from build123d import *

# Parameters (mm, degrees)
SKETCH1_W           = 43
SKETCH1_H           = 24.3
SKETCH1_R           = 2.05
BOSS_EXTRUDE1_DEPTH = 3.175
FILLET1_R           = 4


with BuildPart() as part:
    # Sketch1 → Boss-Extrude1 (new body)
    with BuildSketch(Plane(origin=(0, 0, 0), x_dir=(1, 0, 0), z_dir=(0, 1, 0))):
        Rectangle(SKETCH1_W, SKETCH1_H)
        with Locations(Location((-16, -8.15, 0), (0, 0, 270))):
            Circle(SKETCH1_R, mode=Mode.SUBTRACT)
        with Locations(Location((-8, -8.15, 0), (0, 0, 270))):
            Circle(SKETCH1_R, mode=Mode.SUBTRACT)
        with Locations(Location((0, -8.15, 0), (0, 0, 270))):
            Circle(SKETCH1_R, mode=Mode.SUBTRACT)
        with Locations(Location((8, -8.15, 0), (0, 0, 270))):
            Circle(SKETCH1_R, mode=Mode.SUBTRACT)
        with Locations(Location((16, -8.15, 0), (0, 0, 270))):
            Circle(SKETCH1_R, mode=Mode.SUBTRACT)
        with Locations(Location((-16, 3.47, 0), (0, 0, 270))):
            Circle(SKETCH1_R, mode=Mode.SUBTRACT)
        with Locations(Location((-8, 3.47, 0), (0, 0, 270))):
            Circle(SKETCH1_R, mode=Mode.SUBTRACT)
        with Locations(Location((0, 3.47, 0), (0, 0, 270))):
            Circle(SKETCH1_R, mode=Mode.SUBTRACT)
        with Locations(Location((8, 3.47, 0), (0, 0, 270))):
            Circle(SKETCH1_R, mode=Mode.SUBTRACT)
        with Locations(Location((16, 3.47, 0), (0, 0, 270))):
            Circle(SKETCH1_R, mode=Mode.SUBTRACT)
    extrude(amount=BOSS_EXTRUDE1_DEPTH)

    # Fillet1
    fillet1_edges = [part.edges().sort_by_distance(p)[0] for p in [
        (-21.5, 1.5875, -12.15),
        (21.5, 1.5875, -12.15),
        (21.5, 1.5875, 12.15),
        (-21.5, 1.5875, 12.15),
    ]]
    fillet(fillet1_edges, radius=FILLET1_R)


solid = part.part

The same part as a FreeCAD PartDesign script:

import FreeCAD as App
import Part
import Sketcher


def edges_at(feature, points):
    """Names of the edges that pass closest to the given points."""
    edges = feature.Shape.Edges
    near = lambda p: min(range(len(edges)), key=lambda i: edges[i].distToShape(Part.Vertex(*p))[0])
    return sorted({f"Edge{near(p) + 1}" for p in points})

doc = App.newDocument("Part")
body = doc.addObject("PartDesign::Body", "Body")

# Sketch on XZ plane
sketch1 = body.newObject("Sketcher::SketchObject", "Sketch")
sketch1.AttachmentSupport = (doc.getObject("XZ_Plane"), [""])
sketch1.MapMode = "FlatFace"
sketch1.addGeometry([
    Part.LineSegment(App.Vector(-21.5, -12.2, 0), App.Vector(-21.5, 12.2, 0)),  # 0
    Part.LineSegment(App.Vector(-21.5, 12.2, 0), App.Vector(21.5, 12.2, 0)),  # 1
    Part.LineSegment(App.Vector(21.5, 12.2, 0), App.Vector(21.5, -12.2, 0)),  # 2
    Part.LineSegment(App.Vector(21.5, -12.2, 0), App.Vector(-21.5, -12.2, 0)),  # 3
    Part.Circle(App.Vector(-16, 8.2, 0), App.Vector(0, 0, 1), 2),  # 4
    Part.Circle(App.Vector(-8, 8.2, 0), App.Vector(0, 0, 1), 2),  # 5
    Part.Circle(App.Vector(0, 8.2, 0), App.Vector(0, 0, 1), 2),  # 6
    Part.Circle(App.Vector(8, 8.2, 0), App.Vector(0, 0, 1), 2),  # 7
    Part.Circle(App.Vector(16, 8.2, 0), App.Vector(0, 0, 1), 2),  # 8
    Part.Circle(App.Vector(-16, -3.5, 0), App.Vector(0, 0, 1), 2),  # 9
    Part.Circle(App.Vector(-8, -3.5, 0), App.Vector(0, 0, 1), 2),  # 10
    Part.Circle(App.Vector(0, -3.5, 0), App.Vector(0, 0, 1), 2),  # 11
    Part.Circle(App.Vector(8, -3.5, 0), App.Vector(0, 0, 1), 2),  # 12
    Part.Circle(App.Vector(16, -3.5, 0), App.Vector(0, 0, 1), 2),  # 13
], False)
sketch1.addConstraint([
    Sketcher.Constraint("Coincident", 0, 2, 1, 1),
    Sketcher.Constraint("Coincident", 1, 2, 2, 1),
    Sketcher.Constraint("Coincident", 2, 2, 3, 1),
    Sketcher.Constraint("Coincident", 3, 2, 0, 1),
    Sketcher.Constraint("Vertical", 0),
    Sketcher.Constraint("Horizontal", 1),
    Sketcher.Constraint("Vertical", 2),
    Sketcher.Constraint("Horizontal", 3),
    Sketcher.Constraint("Equal", 4, 5),
    Sketcher.Constraint("Equal", 5, 6),
    Sketcher.Constraint("Equal", 6, 7),
    Sketcher.Constraint("Equal", 7, 8),
    Sketcher.Constraint("Equal", 8, 9),
    Sketcher.Constraint("Equal", 9, 10),
    Sketcher.Constraint("Equal", 10, 11),
    Sketcher.Constraint("Equal", 11, 12),
    Sketcher.Constraint("Equal", 12, 13),
    Sketcher.Constraint("Symmetric", 0, 2, 2, 2, -1, 1),
    Sketcher.Constraint("Symmetric", 5, 3, 7, 3, -2),
    Sketcher.Constraint("Symmetric", 4, 3, 8, 3, -2),
    Sketcher.Constraint("Symmetric", 10, 3, 12, 3, -2),
    Sketcher.Constraint("Symmetric", 9, 3, 13, 3, -2),
    Sketcher.Constraint("PointOnObject", 6, 3, -2),
    Sketcher.Constraint("PointOnObject", 11, 3, -2),
    Sketcher.Constraint("Horizontal", 4, 3, 5, 3),
    Sketcher.Constraint("Horizontal", 5, 3, 6, 3),
    Sketcher.Constraint("Horizontal", 9, 3, 10, 3),
    Sketcher.Constraint("Horizontal", 10, 3, 11, 3),
    Sketcher.Constraint("Vertical", 4, 3, 9, 3),
    Sketcher.Constraint("Vertical", 5, 3, 10, 3),
    Sketcher.Constraint("Diameter", 4, 4.1),
    Sketcher.Constraint("DistanceX", 1, 1, 1, 2, 43.0),
    Sketcher.Constraint("DistanceY", 0, 1, 0, 2, 24.3),
    Sketcher.Constraint("DistanceX", 4, 3, -1, 1, 16.0),
    Sketcher.Constraint("DistanceX", 5, 3, -1, 1, 8.0),
    Sketcher.Constraint("DistanceY", 4, 3, 0, 2, 4.0),
    Sketcher.Constraint("DistanceY", 9, 3, -1, 1, 3.47),
])
pad1 = body.newObject("PartDesign::Pad", "Pad")
pad1.Profile = sketch1
pad1.Length = 3.175
pad1.Reversed = True
doc.recompute()

fillet = body.newObject("PartDesign::Fillet", "Fillet")
fillet.Base = (pad1, edges_at(pad1, [
    (-21.5, 1.587, -12.15),
    (21.5, 1.587, -12.15),
    (21.5, 1.587, 12.15),
    (-21.5, 1.587, 12.15),
]))
fillet.Radius = 4

doc.recompute()
